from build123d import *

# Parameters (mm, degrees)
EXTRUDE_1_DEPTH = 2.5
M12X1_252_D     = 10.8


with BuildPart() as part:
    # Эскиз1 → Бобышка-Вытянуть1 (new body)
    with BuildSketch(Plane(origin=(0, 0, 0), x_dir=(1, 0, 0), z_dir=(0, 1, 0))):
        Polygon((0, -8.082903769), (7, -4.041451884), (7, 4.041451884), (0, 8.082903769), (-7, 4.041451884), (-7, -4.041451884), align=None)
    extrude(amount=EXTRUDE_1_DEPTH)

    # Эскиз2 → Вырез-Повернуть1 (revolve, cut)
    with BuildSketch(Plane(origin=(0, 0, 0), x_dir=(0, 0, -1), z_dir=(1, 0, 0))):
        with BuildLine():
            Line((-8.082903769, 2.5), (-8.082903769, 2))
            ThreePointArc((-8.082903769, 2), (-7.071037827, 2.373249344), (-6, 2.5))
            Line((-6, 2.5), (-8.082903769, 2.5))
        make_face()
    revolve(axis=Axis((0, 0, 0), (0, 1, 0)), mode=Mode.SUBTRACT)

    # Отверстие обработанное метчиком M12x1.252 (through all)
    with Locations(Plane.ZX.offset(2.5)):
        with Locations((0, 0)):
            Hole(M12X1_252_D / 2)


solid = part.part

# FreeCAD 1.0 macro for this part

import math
import FreeCAD as App
import Part
import Sketcher
Q = App.Units.Quantity


def add_polygon(sketch, points):
    """Adds a closed chain of lines whose ends are joined by coincident constraints."""
    first, n = sketch.GeometryCount, len(points)
    for a, b in zip(points, points[1:] + points[:1]):
        sketch.addGeometry(Part.LineSegment(App.Vector(*a, 0), App.Vector(*b, 0)), False)
    for i in range(n):
        sketch.addConstraint(Sketcher.Constraint("Coincident", first + i, 2, first + (i + 1) % n, 1))

doc = App.newDocument("Part")
body = doc.addObject("PartDesign::Body", "Body")

# Sketch on XZ plane
sketch1 = body.newObject("Sketcher::SketchObject", "Sketch")
sketch1.AttachmentSupport = (doc.getObject("XZ_Plane"), [""])
sketch1.MapMode = "FlatFace"
add_polygon(sketch1, [(0, 8.082904), (7, 4.041452), (7, -4.041452), (0, -8.082904), (-7, -4.041452), (-7, 4.041452)])  # lines 0-5
sketch1.addConstraint(Sketcher.Constraint("Vertical", 1))
sketch1.addConstraint(Sketcher.Constraint("Vertical", 4))
sketch1.addConstraint(Sketcher.Constraint("Symmetric", 0, 2, 3, 2, -1, 1))
sketch1.addConstraint(Sketcher.Constraint("Symmetric", 2, 2, 5, 2, -1, 1))
sketch1.addConstraint(Sketcher.Constraint("PointOnObject", 2, 2, -2))
sketch1.addConstraint(Sketcher.Constraint("Parallel", 2, 5))
sketch1.addConstraint(Sketcher.Constraint("Horizontal", 1, 2, 3, 2))
sketch1.addConstraint(Sketcher.Constraint("Angle", 0, Q("-30 deg")))
sketch1.addConstraint(Sketcher.Constraint("DistanceX", -1, 1, 0, 2, 7.0))
sketch1.addConstraint(Sketcher.Constraint("DistanceY", 1, 2, 1, 1, 8.082904))
pad1 = body.newObject("PartDesign::Pad", "Pad")
pad1.Profile = sketch1
pad1.Length = 2.5
pad1.Reversed = True

# Sketch on YZ plane
sketch2 = body.newObject("Sketcher::SketchObject", "Sketch001")
sketch2.AttachmentSupport = (doc.getObject("YZ_Plane"), [""])
sketch2.MapMode = "FlatFace"
sketch2.addGeometry(Part.LineSegment(App.Vector(2.5, 8.082904, 0), App.Vector(2, 8.082904, 0)), False)
sketch2.addGeometry(Part.ArcOfCircle(Part.Circle(App.Vector(-2.088488, 6, 0), App.Vector(0, 0, 1), 4.588488), math.radians(0), math.radians(26.996829)), False)
sketch2.addGeometry(Part.LineSegment(App.Vector(2.5, 6, 0), App.Vector(2.5, 8.082904, 0)), False)
sketch2.addConstraint(Sketcher.Constraint("Coincident", 0, 2, 1, 2))
sketch2.addConstraint(Sketcher.Constraint("Tangent", 1, 1, 2, 1))
sketch2.addConstraint(Sketcher.Constraint("Coincident", 2, 2, 0, 1))
sketch2.addConstraint(Sketcher.Constraint("Horizontal", 0))
sketch2.addConstraint(Sketcher.Constraint("Vertical", 2))
sketch2.addConstraint(Sketcher.Constraint("DistanceX", 0, 2, 0, 1, 0.5))
sketch2.addConstraint(Sketcher.Constraint("DistanceY", -1, 1, 1, 3, 6.0))
sketch2.addConstraint(Sketcher.Constraint("DistanceX", -1, 1, 0, 2, 2.0))
sketch2.addConstraint(Sketcher.Constraint("Radius", 1, 4.588488))
groove = body.newObject("PartDesign::Groove", "Groove")
groove.Profile = sketch2
groove.ReferenceAxis = (sketch2, ["H_Axis"])
groove.Angle = 360

# Sketch on XZ plane
sketch3 = body.newObject("Sketcher::SketchObject", "Sketch002")
sketch3.AttachmentSupport = (doc.getObject("XZ_Plane"), [""])
sketch3.MapMode = "FlatFace"
sketch3.AttachmentOffset = App.Placement(App.Vector(0, 0, -2.5), App.Rotation())
sketch3.addGeometry(Part.Circle(App.Vector(0, 0, 0), App.Vector(0, 0, 1), 5.4), False)
sketch3.addConstraint(Sketcher.Constraint("Coincident", 0, 3, -1, 1))
sketch3.addConstraint(Sketcher.Constraint("Diameter", 0, 10.8))
doc.recompute()
hole = body.newObject("PartDesign::Hole", "Hole")
hole.Profile = sketch3
hole.ThreadType = "None"
hole.Diameter = 10.8
hole.DepthType = "ThroughAll"
hole.Reversed = True

doc.recompute()
